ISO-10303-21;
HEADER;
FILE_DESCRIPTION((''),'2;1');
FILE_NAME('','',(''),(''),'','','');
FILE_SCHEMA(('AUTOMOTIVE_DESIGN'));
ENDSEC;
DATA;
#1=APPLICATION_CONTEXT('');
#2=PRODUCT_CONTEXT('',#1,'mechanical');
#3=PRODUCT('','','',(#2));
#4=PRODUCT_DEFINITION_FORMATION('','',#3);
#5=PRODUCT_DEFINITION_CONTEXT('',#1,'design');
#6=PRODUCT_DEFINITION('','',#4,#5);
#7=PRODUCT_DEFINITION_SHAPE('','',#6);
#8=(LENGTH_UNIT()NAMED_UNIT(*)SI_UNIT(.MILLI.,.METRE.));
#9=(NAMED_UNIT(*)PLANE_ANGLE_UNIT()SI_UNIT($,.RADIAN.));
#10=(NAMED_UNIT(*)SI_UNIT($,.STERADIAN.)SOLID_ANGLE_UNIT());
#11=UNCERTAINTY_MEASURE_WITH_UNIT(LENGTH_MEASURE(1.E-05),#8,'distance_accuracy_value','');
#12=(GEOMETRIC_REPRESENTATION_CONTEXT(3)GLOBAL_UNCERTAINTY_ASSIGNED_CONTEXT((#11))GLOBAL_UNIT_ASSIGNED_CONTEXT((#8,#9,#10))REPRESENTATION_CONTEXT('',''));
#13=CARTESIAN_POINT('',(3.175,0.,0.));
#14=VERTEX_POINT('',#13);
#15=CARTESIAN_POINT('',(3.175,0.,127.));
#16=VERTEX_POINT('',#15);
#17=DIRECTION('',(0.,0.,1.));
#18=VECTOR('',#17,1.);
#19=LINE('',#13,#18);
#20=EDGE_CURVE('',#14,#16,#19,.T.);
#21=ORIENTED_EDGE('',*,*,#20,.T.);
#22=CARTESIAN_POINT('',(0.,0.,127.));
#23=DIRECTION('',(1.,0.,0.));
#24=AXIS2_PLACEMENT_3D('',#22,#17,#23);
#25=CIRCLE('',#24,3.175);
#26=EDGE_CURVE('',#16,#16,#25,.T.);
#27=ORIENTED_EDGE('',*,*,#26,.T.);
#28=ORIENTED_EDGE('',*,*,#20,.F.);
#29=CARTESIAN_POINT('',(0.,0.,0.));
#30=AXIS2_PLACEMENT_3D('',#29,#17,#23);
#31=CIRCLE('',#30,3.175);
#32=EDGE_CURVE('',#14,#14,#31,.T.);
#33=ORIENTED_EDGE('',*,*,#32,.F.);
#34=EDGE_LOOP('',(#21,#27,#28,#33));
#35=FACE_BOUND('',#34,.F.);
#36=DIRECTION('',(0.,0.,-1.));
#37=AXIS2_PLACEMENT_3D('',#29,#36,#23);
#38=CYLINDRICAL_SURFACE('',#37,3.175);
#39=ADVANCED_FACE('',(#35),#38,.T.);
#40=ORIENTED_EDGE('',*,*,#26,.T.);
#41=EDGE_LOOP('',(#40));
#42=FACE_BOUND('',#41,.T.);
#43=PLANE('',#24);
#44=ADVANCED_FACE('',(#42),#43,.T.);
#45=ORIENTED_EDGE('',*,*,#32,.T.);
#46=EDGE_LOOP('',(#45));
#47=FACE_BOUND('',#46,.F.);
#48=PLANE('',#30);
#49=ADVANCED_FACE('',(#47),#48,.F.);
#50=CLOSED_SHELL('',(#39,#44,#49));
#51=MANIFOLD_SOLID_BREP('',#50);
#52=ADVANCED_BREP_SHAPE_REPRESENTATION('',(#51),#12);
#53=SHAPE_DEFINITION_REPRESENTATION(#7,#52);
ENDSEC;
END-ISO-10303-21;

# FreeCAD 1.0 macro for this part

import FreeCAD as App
import Part
import Sketcher

V = App.Vector
Q = App.Units.Quantity

doc = App.newDocument("Part")
params = doc.addObject("Spreadsheet::Sheet", "Params")
for row, (alias, value) in enumerate([
    ("sketch1_diameter", "0.25 in"),
    ("pad1_length", "5 in"),
], start=1):
    params.set(f"A{row}", alias)
    params.set(f"B{row}", "=" + value)
    params.setAlias(f"B{row}", alias)

body = doc.addObject("PartDesign::Body", "Body")

# Sketch on XY plane
sketch1 = body.newObject("Sketcher::SketchObject", "Sketch")
sketch1.AttachmentSupport = (doc.getObject("XY_Plane"), [""])
sketch1.MapMode = "FlatFace"
sketch1.addGeometry(Part.Circle(V(0, 0, 0), V(0, 0, 1), 3.2), False)
sketch1.addConstraint(Sketcher.Constraint("Coincident", 0, 3, -1, 1))
sketch1.addConstraint(Sketcher.Constraint("Diameter", 0, Q("0.25 in")))
sketch1.setExpression("Constraints[1]", "Params.sketch1_diameter")
pad1 = body.newObject("PartDesign::Pad", "Pad")
pad1.Profile = sketch1
pad1.setExpression("Length", "Params.pad1_length")

doc.recompute()
